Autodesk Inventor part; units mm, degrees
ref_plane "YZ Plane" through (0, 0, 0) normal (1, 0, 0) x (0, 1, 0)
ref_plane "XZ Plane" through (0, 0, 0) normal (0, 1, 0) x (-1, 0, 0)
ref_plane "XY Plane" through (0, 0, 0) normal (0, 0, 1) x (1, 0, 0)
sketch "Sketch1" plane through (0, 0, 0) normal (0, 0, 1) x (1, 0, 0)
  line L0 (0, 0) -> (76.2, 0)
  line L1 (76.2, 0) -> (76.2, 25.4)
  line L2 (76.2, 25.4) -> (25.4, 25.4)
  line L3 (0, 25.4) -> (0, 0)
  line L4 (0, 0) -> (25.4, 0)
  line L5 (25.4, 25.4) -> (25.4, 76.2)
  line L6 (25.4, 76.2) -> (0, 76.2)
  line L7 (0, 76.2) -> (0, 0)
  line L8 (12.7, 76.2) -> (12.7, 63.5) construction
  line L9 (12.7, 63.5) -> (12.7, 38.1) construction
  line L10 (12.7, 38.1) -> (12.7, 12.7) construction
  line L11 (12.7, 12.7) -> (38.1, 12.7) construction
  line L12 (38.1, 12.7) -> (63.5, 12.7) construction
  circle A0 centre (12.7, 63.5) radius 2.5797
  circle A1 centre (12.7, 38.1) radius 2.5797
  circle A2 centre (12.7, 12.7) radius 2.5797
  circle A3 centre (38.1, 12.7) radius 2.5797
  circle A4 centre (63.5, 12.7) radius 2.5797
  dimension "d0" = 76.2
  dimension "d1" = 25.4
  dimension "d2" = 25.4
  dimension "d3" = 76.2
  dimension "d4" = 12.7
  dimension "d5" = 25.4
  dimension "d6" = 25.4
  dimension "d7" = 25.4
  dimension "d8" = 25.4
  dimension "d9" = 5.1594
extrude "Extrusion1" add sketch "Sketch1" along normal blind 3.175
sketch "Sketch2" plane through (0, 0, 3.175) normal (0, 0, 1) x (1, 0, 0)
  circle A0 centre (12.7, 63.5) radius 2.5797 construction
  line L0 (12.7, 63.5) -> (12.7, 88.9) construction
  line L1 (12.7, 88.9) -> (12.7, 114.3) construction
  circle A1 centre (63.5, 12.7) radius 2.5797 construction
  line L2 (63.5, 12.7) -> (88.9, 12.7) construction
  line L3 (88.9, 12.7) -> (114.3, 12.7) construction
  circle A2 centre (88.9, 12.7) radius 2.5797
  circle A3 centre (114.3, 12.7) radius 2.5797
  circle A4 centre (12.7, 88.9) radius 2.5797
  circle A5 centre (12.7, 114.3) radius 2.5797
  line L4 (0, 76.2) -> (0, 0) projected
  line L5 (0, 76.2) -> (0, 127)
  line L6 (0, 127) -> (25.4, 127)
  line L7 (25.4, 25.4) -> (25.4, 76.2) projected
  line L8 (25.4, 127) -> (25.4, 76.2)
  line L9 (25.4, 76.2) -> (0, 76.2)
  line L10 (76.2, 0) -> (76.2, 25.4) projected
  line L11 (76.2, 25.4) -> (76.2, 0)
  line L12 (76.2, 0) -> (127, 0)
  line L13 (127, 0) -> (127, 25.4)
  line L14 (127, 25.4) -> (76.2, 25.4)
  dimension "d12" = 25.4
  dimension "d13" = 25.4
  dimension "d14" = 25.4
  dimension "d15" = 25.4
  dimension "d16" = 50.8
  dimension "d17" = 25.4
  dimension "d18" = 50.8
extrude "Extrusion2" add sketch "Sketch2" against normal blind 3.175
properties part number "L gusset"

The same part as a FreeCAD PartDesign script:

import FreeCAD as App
import Part
import Sketcher
Q = App.Units.Quantity

doc = App.newDocument("Part")
params = doc.addObject("Spreadsheet::Sheet", "Params")
for row, (alias, value) in enumerate([
    ("sketch1_width", "3 in"),
    ("sketch1_width2", "1 in"),
    ("sketch1_diameter", "0.203126 in"),
    ("pad1_length", "0.125 in"),
    ("sketch2_width", "1 in"),
    ("sketch2_width2", "2 in"),
    ("sketch2_diameter", "0.203126 in"),
    ("pad2_length", "0.125 in"),
], start=1):
    params.set(f"A{row}", alias)
    params.set(f"B{row}", "=" + value)
    params.setAlias(f"B{row}", alias)

body = doc.addObject("PartDesign::Body", "Body")

sketch1 = doc.addObject("Sketcher::SketchObject", "Sketch")
body.addObject(sketch1)
sketch1.AttachmentSupport = (doc.XY_Plane, [""])
sketch1.MapMode = "FlatFace"
sketch1.addGeometry([
    Part.LineSegment(App.Vector(0, 76.2, 0), App.Vector(0, 0, 0)),
    Part.LineSegment(App.Vector(0, 0, 0), App.Vector(76.2, 0, 0)),
    Part.LineSegment(App.Vector(76.2, 0, 0), App.Vector(76.2, 25.4, 0)),
    Part.LineSegment(App.Vector(76.2, 25.4, 0), App.Vector(25.4, 25.4, 0)),
    Part.LineSegment(App.Vector(25.4, 25.4, 0), App.Vector(25.4, 76.2, 0)),
    Part.LineSegment(App.Vector(25.4, 76.2, 0), App.Vector(0, 76.2, 0)),
    Part.Circle(App.Vector(12.7, 12.7, 0), App.Vector(0, 0, 1), 2.6),
    Part.Circle(App.Vector(38.1, 12.7, 0), App.Vector(0, 0, 1), 2.6),
    Part.Circle(App.Vector(63.5, 12.7, 0), App.Vector(0, 0, 1), 2.6),
    Part.Circle(App.Vector(12.7, 38.1, 0), App.Vector(0, 0, 1), 2.6),
    Part.Circle(App.Vector(12.7, 63.5, 0), App.Vector(0, 0, 1), 2.6),
], False)
sketch1.addConstraint([
    Sketcher.Constraint("Coincident", 0, 2, 1, 1),
    Sketcher.Constraint("Coincident", 1, 2, 2, 1),
    Sketcher.Constraint("Coincident", 2, 2, 3, 1),
    Sketcher.Constraint("Coincident", 3, 2, 4, 1),
    Sketcher.Constraint("Coincident", 4, 2, 5, 1),
    Sketcher.Constraint("Coincident", 5, 2, 0, 1),
    Sketcher.Constraint("Vertical", 0),
    Sketcher.Constraint("Horizontal", 1),
    Sketcher.Constraint("Vertical", 2),
    Sketcher.Constraint("Horizontal", 3),
    Sketcher.Constraint("Vertical", 4),
    Sketcher.Constraint("Horizontal", 5),
    Sketcher.Constraint("Coincident", 0, 2, -1, 1),
    Sketcher.Constraint("Equal", 6, 7),
    Sketcher.Constraint("Equal", 7, 8),
    Sketcher.Constraint("Equal", 8, 9),
    Sketcher.Constraint("Equal", 9, 10),
    Sketcher.Constraint("Horizontal", 6, 3, 7, 3),
    Sketcher.Constraint("Horizontal", 7, 3, 8, 3),
    Sketcher.Constraint("Vertical", 6, 3, 9, 3),
    Sketcher.Constraint("Vertical", 9, 3, 10, 3),
    Sketcher.Constraint("Equal", 1, 0),
    Sketcher.Constraint("Equal", 5, 2),
    Sketcher.Constraint("DistanceX", 1, 1, 1, 2, Q("3 in")),
    Sketcher.Constraint("DistanceX", 5, 2, 5, 1, Q("1 in")),
    Sketcher.Constraint("Diameter", 6, Q("0.203126 in")),
    Sketcher.Constraint("DistanceX", 6, 3, 7, 3, Q("1 in")),
    Sketcher.Constraint("DistanceX", 7, 3, 8, 3, Q("1 in")),
    Sketcher.Constraint("DistanceY", 6, 3, 9, 3, Q("1 in")),
    Sketcher.Constraint("DistanceY", 9, 3, 10, 3, Q("1 in")),
    Sketcher.Constraint("DistanceX", -1, 1, 6, 3, Q("0.5 in")),
    Sketcher.Constraint("DistanceY", -1, 1, 6, 3, Q("0.5 in")),
])
sketch1.setExpression("Constraints[23]", "Params.sketch1_width")
sketch1.setExpression("Constraints[24]", "Params.sketch1_width2")
sketch1.setExpression("Constraints[25]", "Params.sketch1_diameter")
pad1 = doc.addObject("PartDesign::Pad", "Pad")
body.addObject(pad1)
pad1.Profile = sketch1
pad1.setExpression("Length", "Params.pad1_length")

sketch2 = doc.addObject("Sketcher::SketchObject", "Sketch001")
body.addObject(sketch2)
sketch2.AttachmentSupport = (doc.XY_Plane, [""])
sketch2.MapMode = "FlatFace"
sketch2.AttachmentOffset = App.Placement(App.Vector(0, 0, 0.125 * 25.4), App.Rotation())
sketch2.addGeometry([
    Part.LineSegment(App.Vector(0, 127, 0), App.Vector(0, 76.2, 0)),
    Part.LineSegment(App.Vector(0, 76.2, 0), App.Vector(25.4, 76.2, 0)),
    Part.LineSegment(App.Vector(25.4, 76.2, 0), App.Vector(25.4, 127, 0)),
    Part.LineSegment(App.Vector(25.4, 127, 0), App.Vector(0, 127, 0)),
    Part.Circle(App.Vector(12.7, 88.9, 0), App.Vector(0, 0, 1), 2.6),
    Part.Circle(App.Vector(12.7, 114.3, 0), App.Vector(0, 0, 1), 2.6),
    Part.LineSegment(App.Vector(76.2, 25.4, 0), App.Vector(76.2, 0, 0)),
    Part.LineSegment(App.Vector(76.2, 0, 0), App.Vector(127, 0, 0)),
    Part.LineSegment(App.Vector(127, 0, 0), App.Vector(127, 25.4, 0)),
    Part.LineSegment(App.Vector(127, 25.4, 0), App.Vector(76.2, 25.4, 0)),
    Part.Circle(App.Vector(88.9, 12.7, 0), App.Vector(0, 0, 1), 2.6),
    Part.Circle(App.Vector(114.3, 12.7, 0), App.Vector(0, 0, 1), 2.6),
], False)
sketch2.addConstraint([
    Sketcher.Constraint("Coincident", 0, 2, 1, 1),
    Sketcher.Constraint("Coincident", 1, 2, 2, 1),
    Sketcher.Constraint("Coincident", 2, 2, 3, 1),
    Sketcher.Constraint("Coincident", 3, 2, 0, 1),
    Sketcher.Constraint("Coincident", 6, 2, 7, 1),
    Sketcher.Constraint("Coincident", 7, 2, 8, 1),
    Sketcher.Constraint("Coincident", 8, 2, 9, 1),
    Sketcher.Constraint("Coincident", 9, 2, 6, 1),
    Sketcher.Constraint("Vertical", 0),
    Sketcher.Constraint("Horizontal", 1),
    Sketcher.Constraint("Vertical", 2),
    Sketcher.Constraint("Horizontal", 3),
    Sketcher.Constraint("Vertical", 6),
    Sketcher.Constraint("Horizontal", 7),
    Sketcher.Constraint("Vertical", 8),
    Sketcher.Constraint("Horizontal", 9),
    Sketcher.Constraint("Equal", 4, 5),
    Sketcher.Constraint("Equal", 5, 10),
    Sketcher.Constraint("Equal", 10, 11),
    Sketcher.Constraint("PointOnObject", 0, 2, -2),
    Sketcher.Constraint("PointOnObject", 6, 2, -1),
    Sketcher.Constraint("Horizontal", 10, 3, 11, 3),
    Sketcher.Constraint("Vertical", 4, 3, 5, 3),
    Sketcher.Constraint("Equal", 9, 0),
    Sketcher.Constraint("Equal", 3, 6),
    Sketcher.Constraint("DistanceX", 1, 1, 1, 2, Q("1 in")),
    Sketcher.Constraint("DistanceX", 7, 1, 7, 2, Q("2 in")),
    Sketcher.Constraint("DistanceY", 4, 3, 5, 3, Q("1 in")),
    Sketcher.Constraint("DistanceX", 10, 3, 11, 3, Q("1 in")),
    Sketcher.Constraint("DistanceX", 1, 2, 6, 2, Q("2 in")),
    Sketcher.Constraint("DistanceY", 8, 2, 1, 2, Q("2 in")),
    Sketcher.Constraint("Diameter", 4, Q("0.203126 in")),
    Sketcher.Constraint("DistanceX", 4, 3, 10, 3, Q("3 in")),
    Sketcher.Constraint("DistanceY", 10, 3, 4, 3, Q("3 in")),
    Sketcher.Constraint("DistanceX", -1, 1, 4, 3, Q("0.5 in")),
    Sketcher.Constraint("DistanceY", -1, 1, 4, 3, Q("3.5 in")),
])
sketch2.setExpression("Constraints[25]", "Params.sketch2_width")
sketch2.setExpression("Constraints[26]", "Params.sketch2_width2")
sketch2.setExpression("Constraints[31]", "Params.sketch2_diameter")
pad2 = doc.addObject("PartDesign::Pad", "Pad001")
body.addObject(pad2)
pad2.Profile = sketch2
pad2.setExpression("Length", "Params.pad2_length")
pad2.Reversed = True

doc.recompute()
